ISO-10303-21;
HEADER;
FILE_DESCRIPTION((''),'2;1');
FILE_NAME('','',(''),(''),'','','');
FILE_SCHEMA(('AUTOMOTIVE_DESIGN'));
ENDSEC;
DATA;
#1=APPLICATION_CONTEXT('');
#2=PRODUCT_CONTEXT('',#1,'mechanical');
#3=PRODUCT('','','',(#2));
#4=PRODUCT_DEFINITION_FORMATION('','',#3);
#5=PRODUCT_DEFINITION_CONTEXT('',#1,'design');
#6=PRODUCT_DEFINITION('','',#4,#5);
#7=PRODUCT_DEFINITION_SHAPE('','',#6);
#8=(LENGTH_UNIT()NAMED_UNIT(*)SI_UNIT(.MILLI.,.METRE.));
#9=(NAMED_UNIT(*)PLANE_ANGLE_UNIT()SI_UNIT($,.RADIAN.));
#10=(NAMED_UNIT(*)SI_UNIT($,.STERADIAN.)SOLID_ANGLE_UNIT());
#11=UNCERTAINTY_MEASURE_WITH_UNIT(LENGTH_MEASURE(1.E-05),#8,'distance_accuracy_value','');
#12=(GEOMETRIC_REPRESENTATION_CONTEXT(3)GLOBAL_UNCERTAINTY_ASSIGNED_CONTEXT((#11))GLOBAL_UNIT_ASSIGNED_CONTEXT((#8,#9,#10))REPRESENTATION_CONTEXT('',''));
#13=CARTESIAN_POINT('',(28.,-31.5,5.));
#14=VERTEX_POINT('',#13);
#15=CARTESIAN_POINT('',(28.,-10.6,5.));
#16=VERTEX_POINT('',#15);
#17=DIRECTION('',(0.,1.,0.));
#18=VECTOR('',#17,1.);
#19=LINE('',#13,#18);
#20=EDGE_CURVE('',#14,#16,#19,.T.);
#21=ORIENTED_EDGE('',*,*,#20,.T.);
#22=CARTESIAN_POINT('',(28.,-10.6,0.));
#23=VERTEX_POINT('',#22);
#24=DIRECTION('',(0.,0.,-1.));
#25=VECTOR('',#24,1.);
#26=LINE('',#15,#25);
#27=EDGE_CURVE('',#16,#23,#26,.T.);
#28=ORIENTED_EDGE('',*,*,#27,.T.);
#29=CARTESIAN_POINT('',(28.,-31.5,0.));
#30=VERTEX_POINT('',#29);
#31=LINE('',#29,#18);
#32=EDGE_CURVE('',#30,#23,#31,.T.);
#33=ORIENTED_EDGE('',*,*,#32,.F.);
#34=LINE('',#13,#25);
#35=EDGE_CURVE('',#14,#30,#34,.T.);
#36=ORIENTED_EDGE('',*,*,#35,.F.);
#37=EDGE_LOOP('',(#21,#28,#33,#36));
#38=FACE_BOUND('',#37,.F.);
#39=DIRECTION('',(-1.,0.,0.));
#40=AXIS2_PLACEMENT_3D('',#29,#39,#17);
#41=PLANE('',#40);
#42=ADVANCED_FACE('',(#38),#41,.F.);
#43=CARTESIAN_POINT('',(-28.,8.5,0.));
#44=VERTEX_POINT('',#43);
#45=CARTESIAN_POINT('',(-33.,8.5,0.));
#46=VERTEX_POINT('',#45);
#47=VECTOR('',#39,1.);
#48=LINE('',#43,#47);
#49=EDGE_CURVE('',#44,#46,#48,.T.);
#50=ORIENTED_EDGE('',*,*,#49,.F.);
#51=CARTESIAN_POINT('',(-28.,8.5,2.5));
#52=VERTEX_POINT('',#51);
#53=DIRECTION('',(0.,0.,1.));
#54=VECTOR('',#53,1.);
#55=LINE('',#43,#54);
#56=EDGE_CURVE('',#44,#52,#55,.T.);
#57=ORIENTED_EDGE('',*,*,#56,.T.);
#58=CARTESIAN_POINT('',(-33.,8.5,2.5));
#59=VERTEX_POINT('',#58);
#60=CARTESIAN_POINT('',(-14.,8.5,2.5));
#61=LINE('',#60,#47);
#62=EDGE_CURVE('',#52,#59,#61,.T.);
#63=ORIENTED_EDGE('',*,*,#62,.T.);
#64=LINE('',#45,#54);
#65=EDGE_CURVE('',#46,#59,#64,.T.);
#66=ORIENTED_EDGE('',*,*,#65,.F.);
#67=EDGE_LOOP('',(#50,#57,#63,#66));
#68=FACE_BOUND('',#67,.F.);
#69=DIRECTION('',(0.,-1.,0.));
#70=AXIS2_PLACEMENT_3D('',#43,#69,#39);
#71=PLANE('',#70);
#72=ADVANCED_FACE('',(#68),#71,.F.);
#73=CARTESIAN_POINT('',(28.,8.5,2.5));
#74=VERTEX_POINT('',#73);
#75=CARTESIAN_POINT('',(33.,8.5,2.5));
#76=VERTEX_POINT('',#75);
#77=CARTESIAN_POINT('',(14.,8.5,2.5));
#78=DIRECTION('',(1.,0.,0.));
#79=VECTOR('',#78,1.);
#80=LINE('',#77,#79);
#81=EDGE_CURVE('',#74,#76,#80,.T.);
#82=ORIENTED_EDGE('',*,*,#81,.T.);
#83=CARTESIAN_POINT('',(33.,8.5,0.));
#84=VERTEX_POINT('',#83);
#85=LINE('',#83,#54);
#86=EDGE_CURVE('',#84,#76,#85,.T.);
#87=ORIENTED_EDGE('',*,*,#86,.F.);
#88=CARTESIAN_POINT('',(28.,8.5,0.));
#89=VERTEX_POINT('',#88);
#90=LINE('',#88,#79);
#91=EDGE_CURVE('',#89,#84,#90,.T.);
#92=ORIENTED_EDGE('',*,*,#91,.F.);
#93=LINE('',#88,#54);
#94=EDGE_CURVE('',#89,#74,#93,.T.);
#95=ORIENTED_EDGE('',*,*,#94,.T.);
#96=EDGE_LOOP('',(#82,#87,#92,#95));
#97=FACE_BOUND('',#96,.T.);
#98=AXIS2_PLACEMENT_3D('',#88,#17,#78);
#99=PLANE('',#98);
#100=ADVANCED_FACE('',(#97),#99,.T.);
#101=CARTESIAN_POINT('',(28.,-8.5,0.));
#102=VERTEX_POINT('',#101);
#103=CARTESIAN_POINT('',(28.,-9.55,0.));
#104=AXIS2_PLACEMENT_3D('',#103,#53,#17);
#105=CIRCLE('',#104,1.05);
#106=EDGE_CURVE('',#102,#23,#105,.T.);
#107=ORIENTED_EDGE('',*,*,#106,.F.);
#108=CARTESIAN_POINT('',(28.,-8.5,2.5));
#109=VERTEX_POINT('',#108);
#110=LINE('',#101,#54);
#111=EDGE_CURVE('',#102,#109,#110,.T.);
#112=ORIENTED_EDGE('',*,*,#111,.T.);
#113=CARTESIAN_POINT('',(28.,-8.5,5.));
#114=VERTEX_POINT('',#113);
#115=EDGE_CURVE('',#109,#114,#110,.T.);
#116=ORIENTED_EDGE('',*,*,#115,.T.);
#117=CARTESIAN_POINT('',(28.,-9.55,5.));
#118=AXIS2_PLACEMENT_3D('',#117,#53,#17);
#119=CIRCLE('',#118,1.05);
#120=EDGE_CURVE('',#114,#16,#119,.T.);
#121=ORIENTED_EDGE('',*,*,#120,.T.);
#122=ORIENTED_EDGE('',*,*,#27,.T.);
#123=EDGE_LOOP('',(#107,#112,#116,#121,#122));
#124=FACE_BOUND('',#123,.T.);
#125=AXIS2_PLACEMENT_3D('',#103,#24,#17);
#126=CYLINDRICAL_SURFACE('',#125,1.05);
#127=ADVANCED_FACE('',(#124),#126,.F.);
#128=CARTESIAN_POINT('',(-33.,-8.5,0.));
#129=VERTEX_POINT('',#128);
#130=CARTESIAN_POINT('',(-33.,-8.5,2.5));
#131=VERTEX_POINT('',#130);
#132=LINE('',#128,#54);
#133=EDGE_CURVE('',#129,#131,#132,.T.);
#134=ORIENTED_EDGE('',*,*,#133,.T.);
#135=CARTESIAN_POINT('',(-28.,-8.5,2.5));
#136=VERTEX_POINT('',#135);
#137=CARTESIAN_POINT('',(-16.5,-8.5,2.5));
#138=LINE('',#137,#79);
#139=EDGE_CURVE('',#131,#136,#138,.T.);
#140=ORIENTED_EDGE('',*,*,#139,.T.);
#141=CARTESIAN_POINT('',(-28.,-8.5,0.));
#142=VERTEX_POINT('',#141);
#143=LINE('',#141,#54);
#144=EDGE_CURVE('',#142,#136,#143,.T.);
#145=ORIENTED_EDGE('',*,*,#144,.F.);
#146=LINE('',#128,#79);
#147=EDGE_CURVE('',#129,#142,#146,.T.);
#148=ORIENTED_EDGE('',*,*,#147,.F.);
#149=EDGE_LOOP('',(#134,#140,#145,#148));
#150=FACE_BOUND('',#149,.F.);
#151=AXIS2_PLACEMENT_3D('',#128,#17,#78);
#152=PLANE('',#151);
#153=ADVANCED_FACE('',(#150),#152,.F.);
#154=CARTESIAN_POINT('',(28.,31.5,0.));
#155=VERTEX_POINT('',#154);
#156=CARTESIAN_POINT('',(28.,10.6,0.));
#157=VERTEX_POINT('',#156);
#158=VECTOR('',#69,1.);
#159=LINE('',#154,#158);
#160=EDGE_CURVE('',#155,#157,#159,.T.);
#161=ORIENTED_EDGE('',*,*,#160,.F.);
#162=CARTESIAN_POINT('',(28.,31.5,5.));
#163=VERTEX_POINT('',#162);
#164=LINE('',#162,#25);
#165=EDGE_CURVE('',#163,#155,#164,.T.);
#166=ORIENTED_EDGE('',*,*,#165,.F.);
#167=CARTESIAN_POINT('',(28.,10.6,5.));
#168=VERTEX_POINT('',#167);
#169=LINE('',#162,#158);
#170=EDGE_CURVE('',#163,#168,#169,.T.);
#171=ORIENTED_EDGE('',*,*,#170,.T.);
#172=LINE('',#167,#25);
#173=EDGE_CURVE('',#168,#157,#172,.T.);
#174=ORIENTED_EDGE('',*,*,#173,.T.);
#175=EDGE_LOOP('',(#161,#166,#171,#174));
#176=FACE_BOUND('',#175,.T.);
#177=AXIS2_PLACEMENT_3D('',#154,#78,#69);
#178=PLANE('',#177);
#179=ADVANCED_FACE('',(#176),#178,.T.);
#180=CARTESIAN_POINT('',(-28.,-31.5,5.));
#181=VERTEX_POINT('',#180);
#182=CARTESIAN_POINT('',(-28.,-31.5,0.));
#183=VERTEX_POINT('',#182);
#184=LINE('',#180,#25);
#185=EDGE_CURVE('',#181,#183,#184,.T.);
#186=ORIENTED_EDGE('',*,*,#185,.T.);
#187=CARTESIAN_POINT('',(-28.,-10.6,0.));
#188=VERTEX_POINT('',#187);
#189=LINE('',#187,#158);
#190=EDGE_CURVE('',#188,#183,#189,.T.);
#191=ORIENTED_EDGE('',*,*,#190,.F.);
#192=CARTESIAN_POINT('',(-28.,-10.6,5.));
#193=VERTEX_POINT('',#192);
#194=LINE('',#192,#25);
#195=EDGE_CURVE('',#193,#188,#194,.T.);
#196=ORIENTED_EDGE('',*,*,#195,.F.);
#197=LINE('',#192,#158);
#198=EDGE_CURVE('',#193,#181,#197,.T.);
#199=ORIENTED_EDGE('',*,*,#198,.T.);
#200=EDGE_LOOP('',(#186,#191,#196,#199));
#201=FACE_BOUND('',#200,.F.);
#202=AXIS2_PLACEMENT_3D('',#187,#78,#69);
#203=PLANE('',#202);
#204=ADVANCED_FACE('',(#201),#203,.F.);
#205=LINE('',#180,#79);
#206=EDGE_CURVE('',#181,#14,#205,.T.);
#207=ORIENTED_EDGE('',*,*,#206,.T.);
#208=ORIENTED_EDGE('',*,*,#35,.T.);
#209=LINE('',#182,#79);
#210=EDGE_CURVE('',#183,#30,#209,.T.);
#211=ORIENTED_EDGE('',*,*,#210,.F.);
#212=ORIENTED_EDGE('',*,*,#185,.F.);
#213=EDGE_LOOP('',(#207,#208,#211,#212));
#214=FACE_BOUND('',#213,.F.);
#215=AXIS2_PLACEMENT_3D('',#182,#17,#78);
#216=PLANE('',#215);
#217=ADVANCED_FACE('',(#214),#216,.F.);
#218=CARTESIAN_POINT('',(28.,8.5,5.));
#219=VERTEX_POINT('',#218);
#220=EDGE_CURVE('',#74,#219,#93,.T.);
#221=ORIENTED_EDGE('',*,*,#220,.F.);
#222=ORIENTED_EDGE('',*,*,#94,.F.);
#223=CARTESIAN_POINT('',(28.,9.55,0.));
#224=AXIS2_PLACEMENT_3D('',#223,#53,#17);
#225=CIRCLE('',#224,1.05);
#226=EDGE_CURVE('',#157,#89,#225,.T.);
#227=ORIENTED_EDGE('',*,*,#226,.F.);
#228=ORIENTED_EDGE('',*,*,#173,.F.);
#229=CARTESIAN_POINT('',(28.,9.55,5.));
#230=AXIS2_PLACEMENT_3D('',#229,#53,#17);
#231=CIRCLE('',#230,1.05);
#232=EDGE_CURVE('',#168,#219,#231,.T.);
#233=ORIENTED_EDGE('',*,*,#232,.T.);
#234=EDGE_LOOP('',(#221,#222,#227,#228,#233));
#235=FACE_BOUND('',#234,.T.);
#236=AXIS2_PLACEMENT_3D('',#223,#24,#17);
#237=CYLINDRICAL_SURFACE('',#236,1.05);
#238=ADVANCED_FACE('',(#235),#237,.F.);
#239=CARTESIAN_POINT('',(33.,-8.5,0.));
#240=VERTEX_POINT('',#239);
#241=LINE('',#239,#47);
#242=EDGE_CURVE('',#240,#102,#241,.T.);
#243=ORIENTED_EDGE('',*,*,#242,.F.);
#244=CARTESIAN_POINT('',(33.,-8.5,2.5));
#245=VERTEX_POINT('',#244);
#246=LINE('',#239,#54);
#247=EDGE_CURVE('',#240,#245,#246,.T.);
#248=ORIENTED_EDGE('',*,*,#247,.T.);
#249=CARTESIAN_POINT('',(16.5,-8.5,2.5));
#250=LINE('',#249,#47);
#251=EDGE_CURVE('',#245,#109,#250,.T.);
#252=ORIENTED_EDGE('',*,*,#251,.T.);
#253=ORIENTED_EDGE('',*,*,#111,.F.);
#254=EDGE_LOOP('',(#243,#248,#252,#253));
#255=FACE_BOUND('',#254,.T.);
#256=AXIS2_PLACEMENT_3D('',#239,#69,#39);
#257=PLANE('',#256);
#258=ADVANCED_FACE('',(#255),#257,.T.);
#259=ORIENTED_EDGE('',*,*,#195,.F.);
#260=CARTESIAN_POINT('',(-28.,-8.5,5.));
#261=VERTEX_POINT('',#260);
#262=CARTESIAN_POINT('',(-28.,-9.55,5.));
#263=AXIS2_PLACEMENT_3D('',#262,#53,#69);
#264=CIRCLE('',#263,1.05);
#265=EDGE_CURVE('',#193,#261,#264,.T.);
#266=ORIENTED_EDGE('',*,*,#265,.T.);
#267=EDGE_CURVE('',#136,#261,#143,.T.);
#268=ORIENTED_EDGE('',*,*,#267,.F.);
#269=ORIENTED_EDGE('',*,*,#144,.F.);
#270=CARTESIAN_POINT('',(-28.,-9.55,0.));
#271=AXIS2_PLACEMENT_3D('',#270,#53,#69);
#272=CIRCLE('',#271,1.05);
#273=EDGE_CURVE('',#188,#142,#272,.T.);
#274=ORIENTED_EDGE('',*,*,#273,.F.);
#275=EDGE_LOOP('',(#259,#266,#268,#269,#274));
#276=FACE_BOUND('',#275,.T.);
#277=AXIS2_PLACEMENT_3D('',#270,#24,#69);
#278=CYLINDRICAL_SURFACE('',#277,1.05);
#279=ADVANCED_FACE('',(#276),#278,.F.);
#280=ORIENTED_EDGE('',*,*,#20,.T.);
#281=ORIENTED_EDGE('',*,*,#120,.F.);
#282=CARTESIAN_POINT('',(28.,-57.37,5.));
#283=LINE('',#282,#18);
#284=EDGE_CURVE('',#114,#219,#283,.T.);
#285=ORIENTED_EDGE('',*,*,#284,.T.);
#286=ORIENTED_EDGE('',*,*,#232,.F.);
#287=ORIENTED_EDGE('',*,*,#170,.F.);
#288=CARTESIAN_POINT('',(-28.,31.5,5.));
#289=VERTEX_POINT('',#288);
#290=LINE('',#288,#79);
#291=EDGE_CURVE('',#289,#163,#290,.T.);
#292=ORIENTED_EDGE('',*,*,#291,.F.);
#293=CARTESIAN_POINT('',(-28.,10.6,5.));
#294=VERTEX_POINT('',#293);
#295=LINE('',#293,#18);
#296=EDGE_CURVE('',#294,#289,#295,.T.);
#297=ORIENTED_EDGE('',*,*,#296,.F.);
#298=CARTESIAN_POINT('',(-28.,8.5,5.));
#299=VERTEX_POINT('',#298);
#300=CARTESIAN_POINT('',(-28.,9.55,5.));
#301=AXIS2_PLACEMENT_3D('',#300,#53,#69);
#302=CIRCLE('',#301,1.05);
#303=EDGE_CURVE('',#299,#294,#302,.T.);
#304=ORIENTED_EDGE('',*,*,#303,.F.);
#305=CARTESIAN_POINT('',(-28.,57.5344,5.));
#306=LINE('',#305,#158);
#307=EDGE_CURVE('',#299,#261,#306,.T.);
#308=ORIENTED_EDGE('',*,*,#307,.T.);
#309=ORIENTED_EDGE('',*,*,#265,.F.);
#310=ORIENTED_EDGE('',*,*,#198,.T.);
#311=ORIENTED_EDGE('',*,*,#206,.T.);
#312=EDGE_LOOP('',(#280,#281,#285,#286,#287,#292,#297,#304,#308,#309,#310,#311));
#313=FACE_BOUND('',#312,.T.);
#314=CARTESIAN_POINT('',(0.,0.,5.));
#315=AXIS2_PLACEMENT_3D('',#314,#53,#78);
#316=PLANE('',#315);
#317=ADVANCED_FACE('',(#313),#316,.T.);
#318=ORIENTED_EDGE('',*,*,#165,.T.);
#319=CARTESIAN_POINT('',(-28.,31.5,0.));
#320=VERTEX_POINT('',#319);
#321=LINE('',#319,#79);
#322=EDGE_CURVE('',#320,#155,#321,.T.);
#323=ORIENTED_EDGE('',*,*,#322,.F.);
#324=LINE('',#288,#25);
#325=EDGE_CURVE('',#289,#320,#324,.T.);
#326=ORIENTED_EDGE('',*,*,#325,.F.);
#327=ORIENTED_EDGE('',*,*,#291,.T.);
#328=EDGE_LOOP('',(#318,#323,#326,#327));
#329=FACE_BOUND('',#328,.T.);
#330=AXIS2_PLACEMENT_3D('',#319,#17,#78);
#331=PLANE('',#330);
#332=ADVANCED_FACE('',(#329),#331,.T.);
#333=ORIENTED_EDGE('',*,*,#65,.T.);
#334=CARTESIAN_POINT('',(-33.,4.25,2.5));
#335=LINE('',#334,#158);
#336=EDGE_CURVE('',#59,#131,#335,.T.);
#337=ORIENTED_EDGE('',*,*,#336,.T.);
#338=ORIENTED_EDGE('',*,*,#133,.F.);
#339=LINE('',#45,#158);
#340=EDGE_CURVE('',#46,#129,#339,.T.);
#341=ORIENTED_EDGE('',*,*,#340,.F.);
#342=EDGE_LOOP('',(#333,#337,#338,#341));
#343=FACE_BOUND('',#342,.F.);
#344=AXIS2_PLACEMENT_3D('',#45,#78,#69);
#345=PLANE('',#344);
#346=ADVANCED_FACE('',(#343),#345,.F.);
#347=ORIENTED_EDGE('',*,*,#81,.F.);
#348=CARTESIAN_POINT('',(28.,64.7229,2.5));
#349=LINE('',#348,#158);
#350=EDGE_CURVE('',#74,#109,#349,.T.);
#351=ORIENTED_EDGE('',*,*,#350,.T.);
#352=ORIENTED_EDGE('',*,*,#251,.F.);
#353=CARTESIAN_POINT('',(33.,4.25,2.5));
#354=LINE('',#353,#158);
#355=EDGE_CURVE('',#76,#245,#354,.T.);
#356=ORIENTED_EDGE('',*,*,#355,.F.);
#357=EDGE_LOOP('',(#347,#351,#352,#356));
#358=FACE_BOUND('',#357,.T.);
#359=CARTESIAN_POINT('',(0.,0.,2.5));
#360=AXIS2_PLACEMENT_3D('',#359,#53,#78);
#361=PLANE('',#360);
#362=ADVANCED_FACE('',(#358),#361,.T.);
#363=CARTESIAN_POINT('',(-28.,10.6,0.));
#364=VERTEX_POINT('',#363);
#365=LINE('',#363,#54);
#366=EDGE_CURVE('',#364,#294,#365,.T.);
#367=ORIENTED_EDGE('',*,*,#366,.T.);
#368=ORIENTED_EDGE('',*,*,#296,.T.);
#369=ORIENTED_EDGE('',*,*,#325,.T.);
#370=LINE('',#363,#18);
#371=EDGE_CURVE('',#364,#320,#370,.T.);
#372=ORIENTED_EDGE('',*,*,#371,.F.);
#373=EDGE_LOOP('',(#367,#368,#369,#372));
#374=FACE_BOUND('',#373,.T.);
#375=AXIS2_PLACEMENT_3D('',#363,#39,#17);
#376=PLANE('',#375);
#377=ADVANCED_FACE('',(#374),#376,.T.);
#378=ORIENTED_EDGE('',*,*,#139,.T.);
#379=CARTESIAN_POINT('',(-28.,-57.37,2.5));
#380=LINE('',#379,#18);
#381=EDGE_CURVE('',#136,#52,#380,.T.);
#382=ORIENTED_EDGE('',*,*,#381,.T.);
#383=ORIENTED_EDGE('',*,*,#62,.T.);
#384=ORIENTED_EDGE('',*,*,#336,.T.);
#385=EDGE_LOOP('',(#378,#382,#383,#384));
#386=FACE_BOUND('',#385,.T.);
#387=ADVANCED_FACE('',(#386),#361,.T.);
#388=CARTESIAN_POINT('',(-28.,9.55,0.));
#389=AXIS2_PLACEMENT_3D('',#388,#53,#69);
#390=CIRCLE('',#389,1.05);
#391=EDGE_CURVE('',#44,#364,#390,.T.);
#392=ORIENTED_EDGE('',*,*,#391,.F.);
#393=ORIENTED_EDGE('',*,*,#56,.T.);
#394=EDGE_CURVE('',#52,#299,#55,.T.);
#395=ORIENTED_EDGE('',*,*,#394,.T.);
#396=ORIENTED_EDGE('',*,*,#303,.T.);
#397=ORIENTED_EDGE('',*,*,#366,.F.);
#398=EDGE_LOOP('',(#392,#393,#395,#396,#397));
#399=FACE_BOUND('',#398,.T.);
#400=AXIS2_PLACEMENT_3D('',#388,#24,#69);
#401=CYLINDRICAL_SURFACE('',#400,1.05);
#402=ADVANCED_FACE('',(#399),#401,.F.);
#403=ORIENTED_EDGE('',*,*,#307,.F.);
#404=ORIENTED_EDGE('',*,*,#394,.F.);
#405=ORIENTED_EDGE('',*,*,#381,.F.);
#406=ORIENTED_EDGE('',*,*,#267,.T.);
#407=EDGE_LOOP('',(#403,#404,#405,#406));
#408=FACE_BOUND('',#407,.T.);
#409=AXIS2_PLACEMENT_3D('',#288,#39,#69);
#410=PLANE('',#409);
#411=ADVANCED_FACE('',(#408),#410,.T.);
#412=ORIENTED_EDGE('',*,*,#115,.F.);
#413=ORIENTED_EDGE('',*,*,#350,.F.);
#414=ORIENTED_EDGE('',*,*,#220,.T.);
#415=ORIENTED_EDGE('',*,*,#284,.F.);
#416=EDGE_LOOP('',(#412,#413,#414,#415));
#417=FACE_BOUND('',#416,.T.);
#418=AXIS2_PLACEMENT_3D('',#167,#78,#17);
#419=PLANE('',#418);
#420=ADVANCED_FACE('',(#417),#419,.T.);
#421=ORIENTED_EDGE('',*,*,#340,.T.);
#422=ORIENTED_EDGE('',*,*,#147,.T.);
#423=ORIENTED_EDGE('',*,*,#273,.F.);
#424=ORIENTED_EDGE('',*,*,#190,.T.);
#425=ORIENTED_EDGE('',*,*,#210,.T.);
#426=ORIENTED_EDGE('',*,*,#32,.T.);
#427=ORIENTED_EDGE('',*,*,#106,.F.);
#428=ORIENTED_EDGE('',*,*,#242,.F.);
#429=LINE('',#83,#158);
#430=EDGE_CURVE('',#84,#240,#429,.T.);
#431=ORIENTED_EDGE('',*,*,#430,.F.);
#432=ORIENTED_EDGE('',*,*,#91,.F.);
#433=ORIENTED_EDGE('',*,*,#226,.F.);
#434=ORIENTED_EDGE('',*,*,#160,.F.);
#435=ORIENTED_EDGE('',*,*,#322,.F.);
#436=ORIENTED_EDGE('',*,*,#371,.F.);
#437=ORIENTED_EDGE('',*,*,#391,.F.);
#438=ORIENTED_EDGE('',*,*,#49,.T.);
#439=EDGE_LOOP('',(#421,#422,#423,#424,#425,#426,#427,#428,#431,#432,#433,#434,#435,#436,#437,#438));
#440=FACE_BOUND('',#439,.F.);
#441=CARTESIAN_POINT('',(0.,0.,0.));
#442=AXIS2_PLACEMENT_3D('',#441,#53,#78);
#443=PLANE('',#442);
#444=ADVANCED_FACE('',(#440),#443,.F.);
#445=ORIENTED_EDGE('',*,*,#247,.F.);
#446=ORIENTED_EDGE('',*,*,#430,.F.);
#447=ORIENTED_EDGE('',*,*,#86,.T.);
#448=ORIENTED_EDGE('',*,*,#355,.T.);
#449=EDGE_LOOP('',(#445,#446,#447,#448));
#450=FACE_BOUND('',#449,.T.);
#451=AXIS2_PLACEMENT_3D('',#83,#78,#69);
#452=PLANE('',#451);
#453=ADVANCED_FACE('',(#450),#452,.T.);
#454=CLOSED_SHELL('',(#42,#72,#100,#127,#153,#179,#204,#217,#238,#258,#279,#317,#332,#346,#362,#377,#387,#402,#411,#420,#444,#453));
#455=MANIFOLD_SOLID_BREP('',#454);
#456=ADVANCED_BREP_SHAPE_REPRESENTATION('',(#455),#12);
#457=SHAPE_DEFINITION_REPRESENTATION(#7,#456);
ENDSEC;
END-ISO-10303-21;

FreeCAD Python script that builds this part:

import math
import FreeCAD as App
import Part
import Sketcher

V = App.Vector
Q = App.Units.Quantity


def add_polygon(sketch, points):
    """Adds a closed chain of lines whose ends are joined by coincident constraints."""
    first, n = sketch.GeometryCount, len(points)
    for a, b in zip(points, points[1:] + points[:1]):
        sketch.addGeometry(Part.LineSegment(App.Vector(*a, 0), App.Vector(*b, 0)), False)
    for i in range(n):
        sketch.addConstraint(Sketcher.Constraint("Coincident", first + i, 2, first + (i + 1) % n, 1))

doc = App.newDocument("Part")
body = doc.addObject("PartDesign::Body", "Body")

# Sketch on XY plane
sketch1 = body.newObject("Sketcher::SketchObject", "Sketch")
sketch1.AttachmentSupport = (doc.getObject("XY_Plane"), [""])
sketch1.MapMode = "FlatFace"
sketch1.addGeometry([
    Part.LineSegment(V(-28, 31.5, 0), V(-28, 10.6, 0)),  # 0
    Part.ArcOfCircle(Part.Circle(V(-28, 9.6, 0), V(0, 0, 1), 1.1), math.radians(-90), math.radians(90)),  # 1
    Part.LineSegment(V(-28, 8.5, 0), V(-33, 8.5, 0)),  # 2
    Part.LineSegment(V(-33, 8.5, 0), V(-33, -8.5, 0)),  # 3
    Part.LineSegment(V(-33, -8.5, 0), V(-28, -8.5, 0)),  # 4
    Part.ArcOfCircle(Part.Circle(V(-28, -9.6, 0), V(0, 0, 1), 1), math.radians(-90), math.radians(90)),  # 5
    Part.LineSegment(V(-28, -10.6, 0), V(-28, -31.5, 0)),  # 6
    Part.LineSegment(V(-28, -31.5, 0), V(28, -31.5, 0)),  # 7
    Part.LineSegment(V(28, -31.5, 0), V(28, -10.6, 0)),  # 8
    Part.ArcOfCircle(Part.Circle(V(28, -9.6, 0), V(0, 0, 1), 1.1), math.radians(90), math.radians(270)),  # 9
    Part.LineSegment(V(28, -8.5, 0), V(33, -8.5, 0)),  # 10
    Part.LineSegment(V(33, -8.5, 0), V(33, 8.5, 0)),  # 11
    Part.LineSegment(V(33, 8.5, 0), V(28, 8.5, 0)),  # 12
    Part.ArcOfCircle(Part.Circle(V(28, 9.6, 0), V(0, 0, 1), 1), math.radians(90), math.radians(270)),  # 13
    Part.LineSegment(V(28, 10.6, 0), V(28, 31.5, 0)),  # 14
    Part.LineSegment(V(28, 31.5, 0), V(-28, 31.5, 0)),  # 15
], False)
sketch1.addConstraint([
    Sketcher.Constraint("Coincident", 0, 2, 1, 2),
    Sketcher.Constraint("Tangent", 1, 1, 2, 1),
    Sketcher.Constraint("Coincident", 2, 2, 3, 1),
    Sketcher.Constraint("Coincident", 3, 2, 4, 1),
    Sketcher.Constraint("Tangent", 4, 2, 5, 2),
    Sketcher.Constraint("Coincident", 5, 1, 6, 1),
    Sketcher.Constraint("Coincident", 6, 2, 7, 1),
    Sketcher.Constraint("Coincident", 7, 2, 8, 1),
    Sketcher.Constraint("Coincident", 8, 2, 9, 2),
    Sketcher.Constraint("Tangent", 9, 1, 10, 1),
    Sketcher.Constraint("Coincident", 10, 2, 11, 1),
    Sketcher.Constraint("Coincident", 11, 2, 12, 1),
    Sketcher.Constraint("Tangent", 12, 2, 13, 2),
    Sketcher.Constraint("Coincident", 13, 1, 14, 1),
    Sketcher.Constraint("Coincident", 14, 2, 15, 1),
    Sketcher.Constraint("Coincident", 15, 2, 0, 1),
    Sketcher.Constraint("Vertical", 0),
    Sketcher.Constraint("Horizontal", 2),
    Sketcher.Constraint("Vertical", 3),
    Sketcher.Constraint("Horizontal", 4),
    Sketcher.Constraint("Vertical", 6),
    Sketcher.Constraint("Horizontal", 7),
    Sketcher.Constraint("Vertical", 8),
    Sketcher.Constraint("Horizontal", 10),
    Sketcher.Constraint("Vertical", 11),
    Sketcher.Constraint("Horizontal", 12),
    Sketcher.Constraint("Vertical", 14),
    Sketcher.Constraint("Horizontal", 15),
    Sketcher.Constraint("Equal", 1, 5),
    Sketcher.Constraint("Equal", 5, 9),
    Sketcher.Constraint("Equal", 9, 13),
    Sketcher.Constraint("Symmetric", 1, 3, 9, 3, -1, 1),
    Sketcher.Constraint("Symmetric", 5, 3, 13, 3, -1, 1),
    Sketcher.Constraint("Symmetric", 6, 2, 14, 2, -1, 1),
    Sketcher.Constraint("Symmetric", 5, 3, 9, 3, -2),
    Sketcher.Constraint("Vertical", 5, 3, 0, 2),
    Sketcher.Constraint("Vertical", 4, 2, 5, 1),
    Sketcher.Constraint("Vertical", 13, 3, 7, 2),
    Sketcher.Constraint("Equal", 4, 10),
    Sketcher.Constraint("DistanceX", 2, 2, 2, 1, Q("5 mm")),
    Sketcher.Constraint("DistanceX", 7, 1, 7, 2, Q("56 mm")),
    Sketcher.Constraint("Radius", 1, Q("1.05 mm")),
    Sketcher.Constraint("DistanceY", 6, 2, 4, 2, Q("23 mm")),
    Sketcher.Constraint("DistanceY", 3, 2, 3, 1, Q("17 mm")),
])
pad1 = body.newObject("PartDesign::Pad", "Pad")
pad1.Profile = sketch1
pad1.Length = 5

# Sketch on XY plane
sketch2 = body.newObject("Sketcher::SketchObject", "Sketch001")
sketch2.AttachmentSupport = (doc.getObject("XY_Plane"), [""])
sketch2.MapMode = "FlatFace"
sketch2.AttachmentOffset = App.Placement(V(0, 0, 5), App.Rotation())
add_polygon(sketch2, [(-28, -57), (-28, 58), (-51, 58), (-51, -57)])  # lines 0-3
add_polygon(sketch2, [(28, 65), (28, -57), (65, -57), (65, 65)])  # lines 4-7
sketch2.addConstraint([
    Sketcher.Constraint("Vertical", 0),
    Sketcher.Constraint("Horizontal", 1),
    Sketcher.Constraint("Vertical", 2),
    Sketcher.Constraint("Horizontal", 3),
    Sketcher.Constraint("Vertical", 4),
    Sketcher.Constraint("Horizontal", 5),
    Sketcher.Constraint("Vertical", 6),
    Sketcher.Constraint("Horizontal", 7),
    Sketcher.Constraint("Symmetric", 3, 2, 4, 2, -2),
    Sketcher.Constraint("DistanceX", 0, 2, -1, 1, Q("28 mm")),
    Sketcher.Constraint("DistanceY", 4, 2, 4, 1, Q("122.093 mm")),
    Sketcher.Constraint("DistanceY", 2, 2, -1, 1, Q("57.37 mm")),
    Sketcher.Constraint("DistanceX", 1, 2, 1, 1, Q("22.9845 mm")),
    Sketcher.Constraint("DistanceX", 5, 1, 5, 2, Q("37.0267 mm")),
    Sketcher.Constraint("DistanceY", 0, 1, 0, 2, Q("114.9044 mm")),
])
pocket1 = body.newObject("PartDesign::Pocket", "Pocket")
pocket1.Profile = sketch2
pocket1.Length = 2.5

doc.recompute()
